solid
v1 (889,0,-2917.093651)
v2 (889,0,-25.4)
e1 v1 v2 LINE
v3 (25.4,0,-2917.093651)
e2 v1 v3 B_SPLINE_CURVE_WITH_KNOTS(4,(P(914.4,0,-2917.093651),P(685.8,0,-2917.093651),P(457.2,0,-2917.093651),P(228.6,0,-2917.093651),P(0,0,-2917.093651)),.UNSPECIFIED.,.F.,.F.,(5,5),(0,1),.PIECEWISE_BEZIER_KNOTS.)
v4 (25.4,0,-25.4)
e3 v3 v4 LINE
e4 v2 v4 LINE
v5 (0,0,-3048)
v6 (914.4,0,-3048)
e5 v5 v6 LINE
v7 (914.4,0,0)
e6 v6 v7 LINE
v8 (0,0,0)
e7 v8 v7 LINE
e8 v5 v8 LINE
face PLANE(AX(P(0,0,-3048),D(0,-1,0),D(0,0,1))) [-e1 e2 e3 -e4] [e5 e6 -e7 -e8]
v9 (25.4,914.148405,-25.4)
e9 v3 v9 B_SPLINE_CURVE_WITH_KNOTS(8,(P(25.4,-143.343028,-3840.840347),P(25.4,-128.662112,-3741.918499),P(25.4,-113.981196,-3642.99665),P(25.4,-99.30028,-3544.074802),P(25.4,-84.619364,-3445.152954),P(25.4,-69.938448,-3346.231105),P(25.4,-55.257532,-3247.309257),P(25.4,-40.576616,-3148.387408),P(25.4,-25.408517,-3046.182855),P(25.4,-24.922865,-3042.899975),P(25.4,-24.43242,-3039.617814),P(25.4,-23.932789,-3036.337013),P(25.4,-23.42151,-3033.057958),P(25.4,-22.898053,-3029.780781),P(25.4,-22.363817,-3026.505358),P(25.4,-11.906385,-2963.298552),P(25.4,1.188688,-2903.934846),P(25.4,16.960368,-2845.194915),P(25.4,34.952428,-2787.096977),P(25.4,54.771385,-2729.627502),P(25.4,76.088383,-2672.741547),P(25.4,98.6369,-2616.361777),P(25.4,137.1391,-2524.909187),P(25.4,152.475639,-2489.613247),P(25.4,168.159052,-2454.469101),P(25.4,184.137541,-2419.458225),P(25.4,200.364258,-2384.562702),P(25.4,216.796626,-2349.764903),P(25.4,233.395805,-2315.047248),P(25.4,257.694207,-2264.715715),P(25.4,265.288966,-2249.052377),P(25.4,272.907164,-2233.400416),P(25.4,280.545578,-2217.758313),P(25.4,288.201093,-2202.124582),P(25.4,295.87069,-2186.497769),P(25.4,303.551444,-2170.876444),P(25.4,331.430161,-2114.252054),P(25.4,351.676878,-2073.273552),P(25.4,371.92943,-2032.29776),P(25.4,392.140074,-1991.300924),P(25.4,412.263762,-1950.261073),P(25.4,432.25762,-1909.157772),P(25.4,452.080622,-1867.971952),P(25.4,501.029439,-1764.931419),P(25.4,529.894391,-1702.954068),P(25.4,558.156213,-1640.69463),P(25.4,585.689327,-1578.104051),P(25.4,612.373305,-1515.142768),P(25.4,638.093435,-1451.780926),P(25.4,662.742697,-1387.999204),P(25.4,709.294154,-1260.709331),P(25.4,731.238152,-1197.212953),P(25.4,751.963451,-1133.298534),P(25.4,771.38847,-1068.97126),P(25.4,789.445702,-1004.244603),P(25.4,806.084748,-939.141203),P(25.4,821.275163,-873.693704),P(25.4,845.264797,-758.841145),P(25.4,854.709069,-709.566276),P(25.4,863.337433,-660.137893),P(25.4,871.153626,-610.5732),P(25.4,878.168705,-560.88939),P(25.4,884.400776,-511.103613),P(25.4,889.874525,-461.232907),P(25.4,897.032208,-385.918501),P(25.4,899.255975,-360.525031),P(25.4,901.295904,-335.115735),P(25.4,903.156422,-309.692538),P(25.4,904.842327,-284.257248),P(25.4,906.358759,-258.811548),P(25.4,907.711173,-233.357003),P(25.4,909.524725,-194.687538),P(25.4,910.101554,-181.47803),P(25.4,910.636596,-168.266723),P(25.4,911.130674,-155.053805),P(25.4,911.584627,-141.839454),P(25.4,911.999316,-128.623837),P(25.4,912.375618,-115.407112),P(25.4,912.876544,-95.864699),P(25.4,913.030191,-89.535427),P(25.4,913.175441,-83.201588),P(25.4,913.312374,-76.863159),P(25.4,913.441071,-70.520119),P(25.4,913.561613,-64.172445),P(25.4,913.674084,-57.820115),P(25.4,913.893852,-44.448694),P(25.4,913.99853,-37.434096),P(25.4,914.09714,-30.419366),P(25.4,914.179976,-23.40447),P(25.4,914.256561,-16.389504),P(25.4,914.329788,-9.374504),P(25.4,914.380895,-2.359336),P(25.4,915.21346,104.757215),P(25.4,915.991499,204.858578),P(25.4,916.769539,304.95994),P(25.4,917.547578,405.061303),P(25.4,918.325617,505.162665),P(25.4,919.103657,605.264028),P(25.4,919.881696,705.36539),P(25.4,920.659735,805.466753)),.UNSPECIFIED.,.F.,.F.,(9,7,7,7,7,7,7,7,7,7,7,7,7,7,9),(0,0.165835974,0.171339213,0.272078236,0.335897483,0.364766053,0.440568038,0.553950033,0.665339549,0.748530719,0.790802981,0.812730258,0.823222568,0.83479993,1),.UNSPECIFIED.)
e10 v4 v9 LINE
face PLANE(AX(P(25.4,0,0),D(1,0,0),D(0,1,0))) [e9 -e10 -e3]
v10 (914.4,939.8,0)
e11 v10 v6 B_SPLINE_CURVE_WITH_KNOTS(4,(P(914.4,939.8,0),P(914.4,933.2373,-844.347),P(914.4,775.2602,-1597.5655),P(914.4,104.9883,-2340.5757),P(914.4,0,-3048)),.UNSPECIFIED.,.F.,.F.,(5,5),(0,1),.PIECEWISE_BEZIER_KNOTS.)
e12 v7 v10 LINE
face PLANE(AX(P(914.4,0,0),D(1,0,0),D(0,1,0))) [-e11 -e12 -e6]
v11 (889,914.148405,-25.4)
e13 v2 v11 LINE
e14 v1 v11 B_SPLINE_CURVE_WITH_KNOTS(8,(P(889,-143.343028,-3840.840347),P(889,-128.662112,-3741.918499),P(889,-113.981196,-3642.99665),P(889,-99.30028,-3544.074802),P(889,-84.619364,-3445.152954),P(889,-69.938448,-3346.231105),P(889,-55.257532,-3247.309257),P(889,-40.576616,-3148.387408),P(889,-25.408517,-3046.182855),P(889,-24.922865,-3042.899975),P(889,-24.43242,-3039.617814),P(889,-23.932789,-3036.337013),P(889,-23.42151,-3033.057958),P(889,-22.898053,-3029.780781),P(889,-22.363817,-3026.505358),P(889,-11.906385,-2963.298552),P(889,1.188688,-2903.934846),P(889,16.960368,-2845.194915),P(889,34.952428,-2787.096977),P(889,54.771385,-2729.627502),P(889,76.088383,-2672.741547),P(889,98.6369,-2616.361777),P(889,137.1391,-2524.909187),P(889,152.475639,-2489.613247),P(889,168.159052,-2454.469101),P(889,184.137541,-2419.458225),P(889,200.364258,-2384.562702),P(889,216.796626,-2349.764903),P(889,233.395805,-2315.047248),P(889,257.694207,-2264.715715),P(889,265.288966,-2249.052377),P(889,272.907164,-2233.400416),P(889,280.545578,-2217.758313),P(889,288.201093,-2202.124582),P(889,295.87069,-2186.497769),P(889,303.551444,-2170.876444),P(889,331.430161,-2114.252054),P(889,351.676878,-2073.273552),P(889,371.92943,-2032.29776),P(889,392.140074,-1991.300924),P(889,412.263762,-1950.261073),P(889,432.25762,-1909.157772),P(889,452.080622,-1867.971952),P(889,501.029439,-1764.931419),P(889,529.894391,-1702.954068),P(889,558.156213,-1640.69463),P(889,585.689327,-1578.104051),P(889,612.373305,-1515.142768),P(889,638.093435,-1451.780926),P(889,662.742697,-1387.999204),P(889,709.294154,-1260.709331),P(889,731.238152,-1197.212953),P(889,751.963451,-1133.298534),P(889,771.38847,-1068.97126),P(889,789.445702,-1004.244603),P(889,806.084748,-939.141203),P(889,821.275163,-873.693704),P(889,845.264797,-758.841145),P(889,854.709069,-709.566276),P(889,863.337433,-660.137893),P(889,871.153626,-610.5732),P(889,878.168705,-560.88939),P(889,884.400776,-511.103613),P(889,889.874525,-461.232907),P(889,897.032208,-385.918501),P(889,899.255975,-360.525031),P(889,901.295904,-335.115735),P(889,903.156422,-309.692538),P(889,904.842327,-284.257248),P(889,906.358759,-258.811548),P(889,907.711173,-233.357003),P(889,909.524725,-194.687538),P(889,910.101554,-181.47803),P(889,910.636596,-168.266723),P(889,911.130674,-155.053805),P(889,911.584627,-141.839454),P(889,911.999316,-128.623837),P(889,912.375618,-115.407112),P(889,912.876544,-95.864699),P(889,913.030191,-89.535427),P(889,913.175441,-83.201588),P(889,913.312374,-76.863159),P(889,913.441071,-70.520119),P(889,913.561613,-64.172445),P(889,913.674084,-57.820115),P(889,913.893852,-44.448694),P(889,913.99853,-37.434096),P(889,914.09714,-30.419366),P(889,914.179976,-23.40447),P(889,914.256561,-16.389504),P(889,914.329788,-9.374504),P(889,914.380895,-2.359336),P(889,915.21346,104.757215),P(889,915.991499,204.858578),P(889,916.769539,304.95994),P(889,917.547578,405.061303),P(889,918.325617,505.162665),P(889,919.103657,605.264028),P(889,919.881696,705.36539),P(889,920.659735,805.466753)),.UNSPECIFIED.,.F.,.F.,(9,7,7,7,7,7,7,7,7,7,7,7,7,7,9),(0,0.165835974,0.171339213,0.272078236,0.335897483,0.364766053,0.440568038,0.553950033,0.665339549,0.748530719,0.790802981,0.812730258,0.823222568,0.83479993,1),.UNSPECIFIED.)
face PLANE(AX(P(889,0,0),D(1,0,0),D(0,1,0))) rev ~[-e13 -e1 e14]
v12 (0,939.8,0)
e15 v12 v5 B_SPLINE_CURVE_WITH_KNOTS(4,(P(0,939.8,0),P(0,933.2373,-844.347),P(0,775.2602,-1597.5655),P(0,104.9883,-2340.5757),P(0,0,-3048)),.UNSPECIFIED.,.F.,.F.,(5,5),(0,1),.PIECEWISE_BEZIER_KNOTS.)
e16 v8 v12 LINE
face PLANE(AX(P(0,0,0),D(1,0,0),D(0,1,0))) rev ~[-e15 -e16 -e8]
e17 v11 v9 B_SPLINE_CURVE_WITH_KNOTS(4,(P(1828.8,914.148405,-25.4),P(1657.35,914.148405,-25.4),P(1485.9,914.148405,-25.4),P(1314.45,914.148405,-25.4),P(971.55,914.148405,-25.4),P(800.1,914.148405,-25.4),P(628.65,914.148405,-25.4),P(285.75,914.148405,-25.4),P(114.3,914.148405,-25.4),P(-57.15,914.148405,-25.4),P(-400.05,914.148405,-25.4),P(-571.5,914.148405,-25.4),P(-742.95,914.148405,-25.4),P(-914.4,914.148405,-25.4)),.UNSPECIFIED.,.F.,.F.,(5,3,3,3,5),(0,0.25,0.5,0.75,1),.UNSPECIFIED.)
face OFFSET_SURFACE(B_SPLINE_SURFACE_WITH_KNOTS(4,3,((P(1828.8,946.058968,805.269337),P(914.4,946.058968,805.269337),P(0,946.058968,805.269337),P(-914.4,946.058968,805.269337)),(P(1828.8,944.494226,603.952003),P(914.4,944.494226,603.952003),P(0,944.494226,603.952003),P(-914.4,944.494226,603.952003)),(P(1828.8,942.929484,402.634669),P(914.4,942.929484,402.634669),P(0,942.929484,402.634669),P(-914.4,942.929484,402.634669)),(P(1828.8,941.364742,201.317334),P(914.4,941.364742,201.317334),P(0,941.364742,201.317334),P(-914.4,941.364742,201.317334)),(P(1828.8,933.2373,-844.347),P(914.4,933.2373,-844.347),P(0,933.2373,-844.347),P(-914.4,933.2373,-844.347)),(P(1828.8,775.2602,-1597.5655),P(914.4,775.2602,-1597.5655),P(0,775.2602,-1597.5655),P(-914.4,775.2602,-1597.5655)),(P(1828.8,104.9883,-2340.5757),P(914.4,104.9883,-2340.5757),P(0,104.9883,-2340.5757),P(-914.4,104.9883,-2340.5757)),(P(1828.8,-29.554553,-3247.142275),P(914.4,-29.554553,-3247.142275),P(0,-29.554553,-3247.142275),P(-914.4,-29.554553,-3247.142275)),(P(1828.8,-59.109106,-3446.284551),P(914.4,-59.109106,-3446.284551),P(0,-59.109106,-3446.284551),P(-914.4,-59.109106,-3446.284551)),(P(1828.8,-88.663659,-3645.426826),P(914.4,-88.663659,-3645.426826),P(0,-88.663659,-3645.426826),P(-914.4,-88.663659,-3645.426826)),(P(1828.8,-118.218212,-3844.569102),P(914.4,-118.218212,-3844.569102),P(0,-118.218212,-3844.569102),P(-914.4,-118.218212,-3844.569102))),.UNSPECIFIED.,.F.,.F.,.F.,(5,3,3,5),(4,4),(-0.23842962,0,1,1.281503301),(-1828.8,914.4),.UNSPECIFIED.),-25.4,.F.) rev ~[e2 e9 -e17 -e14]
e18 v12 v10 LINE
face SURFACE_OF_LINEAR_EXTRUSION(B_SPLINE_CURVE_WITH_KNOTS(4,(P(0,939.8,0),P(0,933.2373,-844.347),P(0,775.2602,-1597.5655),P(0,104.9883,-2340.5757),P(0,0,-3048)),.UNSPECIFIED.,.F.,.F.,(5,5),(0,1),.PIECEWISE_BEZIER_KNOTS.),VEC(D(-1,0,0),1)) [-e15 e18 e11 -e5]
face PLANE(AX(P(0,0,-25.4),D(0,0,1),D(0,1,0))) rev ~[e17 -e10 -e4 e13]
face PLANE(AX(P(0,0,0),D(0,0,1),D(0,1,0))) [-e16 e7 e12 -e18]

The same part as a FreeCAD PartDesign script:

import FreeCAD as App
import Part
import Sketcher

V = App.Vector
Q = App.Units.Quantity


def faces_at(feature, points):
    """Names of the faces that lie closest to the given points."""
    faces = feature.Shape.Faces
    near = lambda p: min(range(len(faces)), key=lambda i: faces[i].distToShape(Part.Vertex(*p))[0])
    return sorted({f"Face{near(p) + 1}" for p in points})

doc = App.newDocument("Part")
body = doc.addObject("PartDesign::Body", "Body")

sketch1 = body.newObject("Sketcher::SketchObject", "Sketch")
sketch1.AttachmentSupport = (doc.getObject("YZ_Plane"), [""])
sketch1.MapMode = "FlatFace"
sketch1.addGeometry([
    Part.LineSegment(V(939.8, 0, 0), V(0, 0, 0)),
    Part.LineSegment(V(0, 0, 0), V(0, -3048, 0)),
    Part.BSplineCurve([V(939.8, 0, 0), V(933.2373, -844.347, 0), V(775.2602, -1597.5655, 0), V(104.9883, -2340.5757, 0), V(0, -3048, 0)], [5, 5], [0, 1], False, 4, [1, 1, 1, 1, 1], False),
], False)
sketch1.addConstraint([
    Sketcher.Constraint("Block", 2),
    Sketcher.Constraint("Coincident", 0, 2, 1, 1),
    Sketcher.Constraint("Coincident", 1, 2, 2, 2),
    Sketcher.Constraint("Coincident", 2, 1, 0, 1),
    Sketcher.Constraint("Horizontal", 0),
    Sketcher.Constraint("Vertical", 1),
])
pad1 = body.newObject("PartDesign::Pad", "Pad")
pad1.Profile = sketch1
pad1.Length = Q("36 in")
doc.recompute()

thickness = body.newObject("PartDesign::Thickness", "Thickness")
thickness.Base = (pad1, faces_at(pad1, [(304.8, 0, -1016)]))
thickness.Value = Q("1 in")
thickness.Reversed = True
thickness.Join = "Intersection"

doc.recompute()
